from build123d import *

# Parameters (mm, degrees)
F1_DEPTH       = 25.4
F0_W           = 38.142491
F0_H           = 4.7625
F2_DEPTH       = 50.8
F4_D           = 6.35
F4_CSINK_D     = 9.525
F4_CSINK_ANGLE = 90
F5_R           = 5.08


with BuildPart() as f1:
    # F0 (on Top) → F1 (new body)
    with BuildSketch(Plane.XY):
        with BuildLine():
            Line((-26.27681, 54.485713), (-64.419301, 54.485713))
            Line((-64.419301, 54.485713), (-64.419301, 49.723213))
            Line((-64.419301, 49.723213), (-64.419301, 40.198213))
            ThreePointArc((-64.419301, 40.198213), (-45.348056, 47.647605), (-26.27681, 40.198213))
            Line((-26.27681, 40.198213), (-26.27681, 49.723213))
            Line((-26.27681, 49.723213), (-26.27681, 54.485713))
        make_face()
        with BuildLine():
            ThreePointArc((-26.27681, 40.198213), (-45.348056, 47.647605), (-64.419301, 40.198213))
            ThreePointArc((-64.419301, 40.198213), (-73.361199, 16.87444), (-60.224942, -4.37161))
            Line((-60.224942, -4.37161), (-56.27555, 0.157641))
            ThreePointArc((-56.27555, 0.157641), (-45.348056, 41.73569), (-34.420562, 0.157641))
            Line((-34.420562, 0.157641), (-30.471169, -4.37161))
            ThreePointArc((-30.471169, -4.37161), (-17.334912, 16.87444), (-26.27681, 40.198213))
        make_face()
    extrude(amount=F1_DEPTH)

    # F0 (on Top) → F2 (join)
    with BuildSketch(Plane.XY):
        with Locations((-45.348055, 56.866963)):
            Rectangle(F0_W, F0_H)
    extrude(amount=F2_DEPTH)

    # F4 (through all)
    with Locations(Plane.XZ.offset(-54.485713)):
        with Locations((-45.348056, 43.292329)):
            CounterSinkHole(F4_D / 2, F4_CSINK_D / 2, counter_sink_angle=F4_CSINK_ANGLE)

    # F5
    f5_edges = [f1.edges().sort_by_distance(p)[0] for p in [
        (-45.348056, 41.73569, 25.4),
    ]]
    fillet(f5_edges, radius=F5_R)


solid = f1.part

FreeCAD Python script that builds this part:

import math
import FreeCAD as App
import Part
import Sketcher
from FreeCAD import Vector
Q = App.Units.Quantity


def edges_at(feature, points):
    """Names of the edges that pass closest to the given points."""
    edges = feature.Shape.Edges
    near = lambda p: min(range(len(edges)), key=lambda i: edges[i].distToShape(Part.Vertex(*p))[0])
    return sorted({f"Edge{near(p) + 1}" for p in points})


def add_polygon(sketch, points):
    """Adds a closed chain of lines whose ends are joined by coincident constraints."""
    first, n = sketch.GeometryCount, len(points)
    for a, b in zip(points, points[1:] + points[:1]):
        sketch.addGeometry(Part.LineSegment(App.Vector(*a, 0), App.Vector(*b, 0)), False)
    for i in range(n):
        sketch.addConstraint(Sketcher.Constraint("Coincident", first + i, 2, first + (i + 1) % n, 1))

doc = App.newDocument("Part")
params = doc.addObject("Spreadsheet::Sheet", "Params")
for row, (alias, value) in enumerate([
    ("sketch1_radius", "0.875 in"),
    ("sketch1_height", "0.5625 in"),
    ("pad1_length", "1 in"),
    ("sketch2_height", "0.1875 in"),
    ("pad2_length", "2 in"),
    ("sketch3_diameter", "0.25 in"),
    ("hole_diameter", "0.25 in"),
    ("hole_csink_diameter", "0.375 in"),
    ("fillet_radius", "0.2 in"),
], start=1):
    params.set(f"A{row}", alias)
    params.set(f"B{row}", "=" + value)
    params.setAlias(f"B{row}", alias)

body = doc.addObject("PartDesign::Body", "Body")

sketch1 = body.newObject("Sketcher::SketchObject", "Sketch")
sketch1.AttachmentSupport = (doc.getObject("XY_Plane"), [""])
sketch1.MapMode = "FlatFace"
sketch1.addGeometry([
    Part.LineSegment(Vector(-26, 54, 0), Vector(-64, 54, 0)),
    Part.LineSegment(Vector(-64, 54, 0), Vector(-64, 40, 0)),
    Part.ArcOfCircle(Part.Circle(Vector(-45, 20, 0), Vector(0, 0, 1), 28), math.radians(133), math.radians(238)),
    Part.LineSegment(Vector(-60, -4, 0), Vector(-56, 0, 0)),
    Part.ArcOfCircle(Part.Circle(Vector(-45, 20, 0), Vector(0, 0, 1), 22), math.radians(-61), math.radians(241)),
    Part.LineSegment(Vector(-34, 0, 0), Vector(-30, -4, 0)),
    Part.ArcOfCircle(Part.Circle(Vector(-45, 20, 0), Vector(0, 0, 1), 28), math.radians(-58), math.radians(47)),
    Part.LineSegment(Vector(-26, 40, 0), Vector(-26, 54, 0)),
], False)
sketch1.addConstraint([
    Sketcher.Constraint("Coincident", 0, 2, 1, 1),
    Sketcher.Constraint("Coincident", 1, 2, 2, 1),
    Sketcher.Constraint("Coincident", 2, 2, 3, 1),
    Sketcher.Constraint("Coincident", 3, 2, 4, 2),
    Sketcher.Constraint("Coincident", 4, 1, 5, 1),
    Sketcher.Constraint("Coincident", 5, 2, 6, 1),
    Sketcher.Constraint("Coincident", 6, 2, 7, 1),
    Sketcher.Constraint("Coincident", 7, 2, 0, 1),
    Sketcher.Constraint("Horizontal", 0),
    Sketcher.Constraint("Vertical", 1),
    Sketcher.Constraint("Vertical", 7),
    Sketcher.Constraint("Coincident", 4, 3, 2, 3),
    Sketcher.Constraint("Coincident", 6, 3, 2, 3),
    Sketcher.Constraint("Equal", 2, 6),
    Sketcher.Constraint("Horizontal", 3, 2, 4, 1),
    Sketcher.Constraint("Horizontal", 2, 2, 5, 2),
    Sketcher.Constraint("Horizontal", 1, 2, 6, 2),
    Sketcher.Constraint("Radius", 4, Q("0.875 in")),
    Sketcher.Constraint("DistanceY", 1, 2, 1, 1, Q("0.5625 in")),
    Sketcher.Constraint("Radius", 2, Q("28.136915 mm")),
    Sketcher.Constraint("DistanceX", 0, 2, 0, 1, Q("38.142491 mm")),
    Sketcher.Constraint("DistanceX", 0, 2, -1, 1, Q("64.419301 mm")),
    Sketcher.Constraint("DistanceY", 2, 2, 4, 3, Q("23.8823 mm")),
    Sketcher.Constraint("Distance", 3, Q("6.00931 mm")),
    Sketcher.Constraint("DistanceY", -1, 1, 2, 3, Q("19.51069 mm")),
])
sketch1.setExpression("Constraints[17]", "Params.sketch1_radius")
sketch1.setExpression("Constraints[18]", "Params.sketch1_height")
pad1 = body.newObject("PartDesign::Pad", "Pad")
pad1.Profile = sketch1
pad1.setExpression("Length", "Params.pad1_length")

sketch2 = body.newObject("Sketcher::SketchObject", "Sketch001")
sketch2.AttachmentSupport = (doc.getObject("XY_Plane"), [""])
sketch2.MapMode = "FlatFace"
add_polygon(sketch2, [(-64.4, 59.2), (-64.4, 54.5), (-26.3, 54.5), (-26.3, 59.2)])
sketch2.addConstraint([
    Sketcher.Constraint("Vertical", 0),
    Sketcher.Constraint("Horizontal", 1),
    Sketcher.Constraint("Vertical", 2),
    Sketcher.Constraint("Horizontal", 3),
    Sketcher.Constraint("DistanceY", 0, 2, 0, 1, Q("0.1875 in")),
    Sketcher.Constraint("DistanceX", 1, 1, 1, 2, Q("38.142491 mm")),
    Sketcher.Constraint("DistanceX", 0, 2, -1, 1, Q("64.419301 mm")),
    Sketcher.Constraint("DistanceY", -1, 1, 0, 2, Q("54.485713 mm")),
])
sketch2.setExpression("Constraints[8]", "Params.sketch2_height")
pad2 = body.newObject("PartDesign::Pad", "Pad001")
pad2.Profile = sketch2
pad2.setExpression("Length", "Params.pad2_length")

sketch3 = body.newObject("Sketcher::SketchObject", "Sketch002")
sketch3.AttachmentSupport = (doc.getObject("XZ_Plane"), [""])
sketch3.MapMode = "FlatFace"
sketch3.AttachmentOffset = App.Placement(Vector(0, 0, -54.485713), App.Rotation())
sketch3.addGeometry(Part.Circle(Vector(-45.3, 43.3, 0), Vector(0, 0, 1), 3.2), False)
sketch3.addConstraint([
    Sketcher.Constraint("Diameter", 0, Q("0.25 in")),
    Sketcher.Constraint("DistanceY", -1, 1, 0, 3, Q("43.292329 mm")),
    Sketcher.Constraint("DistanceX", 0, 3, -1, 1, Q("45.348056 mm")),
])
sketch3.setExpression("Constraints[0]", "Params.sketch3_diameter")
doc.recompute()
hole = body.newObject("PartDesign::Hole", "Hole")
hole.Profile = sketch3
hole.ThreadType = "None"
hole.setExpression("Diameter", "Params.hole_diameter")
hole.DepthType = "ThroughAll"
hole.HoleCutType = "Countersink"
hole.setExpression("HoleCutDiameter", "Params.hole_csink_diameter")
hole.HoleCutCountersinkAngle = 90
doc.recompute()

fillet = body.newObject("PartDesign::Fillet", "Fillet")
fillet.Base = (hole, edges_at(hole, [(-45.348, 41.736, 25.4)]))
fillet.setExpression("Radius", "Params.fillet_radius")

doc.recompute()
